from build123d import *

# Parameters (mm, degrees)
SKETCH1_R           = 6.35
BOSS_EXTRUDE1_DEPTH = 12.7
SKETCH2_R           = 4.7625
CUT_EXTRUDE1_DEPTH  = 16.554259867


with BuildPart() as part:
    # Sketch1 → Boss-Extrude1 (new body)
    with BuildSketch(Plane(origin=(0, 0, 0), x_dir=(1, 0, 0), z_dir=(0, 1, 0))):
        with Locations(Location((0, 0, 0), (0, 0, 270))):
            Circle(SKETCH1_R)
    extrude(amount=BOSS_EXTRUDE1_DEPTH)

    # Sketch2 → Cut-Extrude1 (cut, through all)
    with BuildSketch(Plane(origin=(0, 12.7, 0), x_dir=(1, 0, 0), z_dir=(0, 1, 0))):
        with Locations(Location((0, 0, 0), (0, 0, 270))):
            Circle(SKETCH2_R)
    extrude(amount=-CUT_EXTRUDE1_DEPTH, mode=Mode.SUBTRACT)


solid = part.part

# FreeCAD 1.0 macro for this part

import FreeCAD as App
import Part
import Sketcher
Q = App.Units.Quantity

doc = App.newDocument("Part")
body = doc.addObject("PartDesign::Body", "Body")

sketch1 = doc.addObject("Sketcher::SketchObject", "Sketch")
body.addObject(sketch1)
sketch1.AttachmentSupport = (doc.XZ_Plane, [""])
sketch1.MapMode = "FlatFace"
sketch1.addGeometry(Part.Circle(App.Vector(0, 0, 0), App.Vector(0, 0, 1), 6.35), False)
sketch1.addConstraint(Sketcher.Constraint("Coincident", 0, 3, -1, 1))
sketch1.addConstraint(Sketcher.Constraint("Diameter", 0, Q("0.5 in")))
pad1 = doc.addObject("PartDesign::Pad", "Pad")
body.addObject(pad1)
pad1.Profile = sketch1
pad1.Length = Q("0.5 in")
pad1.Reversed = True

sketch2 = doc.addObject("Sketcher::SketchObject", "Sketch001")
body.addObject(sketch2)
sketch2.AttachmentSupport = (doc.XZ_Plane, [""])
sketch2.MapMode = "FlatFace"
sketch2.AttachmentOffset = App.Placement(App.Vector(0, 0, -0.5 * 25.4), App.Rotation())
sketch2.addGeometry(Part.Circle(App.Vector(0, 0, 0), App.Vector(0, 0, 1), 4.7625), False)
sketch2.addConstraint(Sketcher.Constraint("Coincident", 0, 3, -1, 1))
sketch2.addConstraint(Sketcher.Constraint("Diameter", 0, Q("0.375 in")))
pocket1 = doc.addObject("PartDesign::Pocket", "Pocket")
body.addObject(pocket1)
pocket1.Profile = sketch2
pocket1.Type = "ThroughAll"
pocket1.Reversed = True

doc.recompute()
